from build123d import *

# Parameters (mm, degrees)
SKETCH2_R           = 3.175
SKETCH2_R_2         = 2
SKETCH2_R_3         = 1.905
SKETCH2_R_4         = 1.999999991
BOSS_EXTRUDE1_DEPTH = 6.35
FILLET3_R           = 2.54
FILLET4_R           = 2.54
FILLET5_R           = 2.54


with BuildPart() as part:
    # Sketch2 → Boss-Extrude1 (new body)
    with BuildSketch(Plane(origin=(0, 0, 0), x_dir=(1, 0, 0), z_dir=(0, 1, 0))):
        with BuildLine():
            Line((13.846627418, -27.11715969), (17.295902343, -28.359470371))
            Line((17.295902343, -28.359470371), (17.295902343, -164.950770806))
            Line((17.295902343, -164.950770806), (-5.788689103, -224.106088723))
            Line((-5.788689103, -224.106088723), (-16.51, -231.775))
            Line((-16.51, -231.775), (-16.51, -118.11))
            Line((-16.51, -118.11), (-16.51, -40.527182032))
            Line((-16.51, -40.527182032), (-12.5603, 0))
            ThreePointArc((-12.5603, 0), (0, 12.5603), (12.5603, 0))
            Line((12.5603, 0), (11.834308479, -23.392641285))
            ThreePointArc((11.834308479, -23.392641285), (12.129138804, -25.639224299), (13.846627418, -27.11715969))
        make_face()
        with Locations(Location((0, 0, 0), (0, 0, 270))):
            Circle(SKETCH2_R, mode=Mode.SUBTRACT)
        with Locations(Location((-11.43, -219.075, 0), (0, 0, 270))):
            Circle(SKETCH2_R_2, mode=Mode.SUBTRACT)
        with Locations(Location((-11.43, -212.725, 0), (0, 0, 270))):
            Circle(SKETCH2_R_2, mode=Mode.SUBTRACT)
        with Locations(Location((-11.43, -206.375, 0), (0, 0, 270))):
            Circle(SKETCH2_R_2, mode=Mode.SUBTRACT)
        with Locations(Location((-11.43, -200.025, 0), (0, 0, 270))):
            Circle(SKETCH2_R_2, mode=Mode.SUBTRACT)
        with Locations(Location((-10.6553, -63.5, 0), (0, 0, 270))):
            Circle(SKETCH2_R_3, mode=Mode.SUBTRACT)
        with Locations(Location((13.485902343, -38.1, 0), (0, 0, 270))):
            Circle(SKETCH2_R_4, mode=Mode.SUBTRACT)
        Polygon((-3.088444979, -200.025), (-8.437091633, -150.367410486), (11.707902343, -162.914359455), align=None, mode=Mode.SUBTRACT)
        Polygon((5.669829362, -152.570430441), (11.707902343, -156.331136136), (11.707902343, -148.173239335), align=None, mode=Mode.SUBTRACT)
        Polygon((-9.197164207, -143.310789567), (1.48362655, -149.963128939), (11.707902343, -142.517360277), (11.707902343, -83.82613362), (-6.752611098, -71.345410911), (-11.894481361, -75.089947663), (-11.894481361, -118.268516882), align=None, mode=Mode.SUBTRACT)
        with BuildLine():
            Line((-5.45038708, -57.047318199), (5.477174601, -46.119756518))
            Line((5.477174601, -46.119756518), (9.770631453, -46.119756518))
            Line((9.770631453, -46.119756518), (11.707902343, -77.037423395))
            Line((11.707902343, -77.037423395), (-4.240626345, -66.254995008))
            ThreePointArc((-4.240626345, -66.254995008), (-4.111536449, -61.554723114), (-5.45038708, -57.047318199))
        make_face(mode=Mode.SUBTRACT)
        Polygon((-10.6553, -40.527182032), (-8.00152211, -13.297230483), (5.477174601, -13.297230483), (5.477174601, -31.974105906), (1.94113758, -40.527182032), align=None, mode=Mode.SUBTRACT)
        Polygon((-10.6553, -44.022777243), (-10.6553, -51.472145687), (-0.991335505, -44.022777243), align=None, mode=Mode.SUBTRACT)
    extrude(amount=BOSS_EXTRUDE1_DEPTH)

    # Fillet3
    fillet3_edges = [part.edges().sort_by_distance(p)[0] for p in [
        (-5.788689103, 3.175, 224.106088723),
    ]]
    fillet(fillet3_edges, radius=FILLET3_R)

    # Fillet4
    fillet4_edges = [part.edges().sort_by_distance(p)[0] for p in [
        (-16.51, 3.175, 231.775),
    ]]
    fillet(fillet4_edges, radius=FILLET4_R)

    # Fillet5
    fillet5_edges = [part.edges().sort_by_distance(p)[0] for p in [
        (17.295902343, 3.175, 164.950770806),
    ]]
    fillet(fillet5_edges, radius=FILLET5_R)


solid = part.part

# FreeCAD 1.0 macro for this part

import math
import FreeCAD as App
import Part
import Sketcher
Q = App.Units.Quantity


def edges_at(feature, points):
    """Names of the edges that pass closest to the given points."""
    edges = feature.Shape.Edges
    near = lambda p: min(range(len(edges)), key=lambda i: edges[i].distToShape(Part.Vertex(*p))[0])
    return sorted({f"Edge{near(p) + 1}" for p in points})


def add_polygon(sketch, points):
    """Adds a closed chain of lines whose ends are joined by coincident constraints."""
    first, n = sketch.GeometryCount, len(points)
    for a, b in zip(points, points[1:] + points[:1]):
        sketch.addGeometry(Part.LineSegment(App.Vector(*a, 0), App.Vector(*b, 0)), False)
    for i in range(n):
        sketch.addConstraint(Sketcher.Constraint("Coincident", first + i, 2, first + (i + 1) % n, 1))

doc = App.newDocument("Part")
body = doc.addObject("PartDesign::Body", "Body")

# Sketch on XZ plane
sketch1 = doc.addObject("Sketcher::SketchObject", "Sketch")
body.addObject(sketch1)
sketch1.AttachmentSupport = (doc.XZ_Plane, [""])
sketch1.MapMode = "FlatFace"
sketch1.addGeometry(Part.LineSegment(App.Vector(17.295902, 28.35947, 0), App.Vector(13.846627, 27.11716, 0)), False)  # 0
sketch1.addGeometry(Part.ArcOfCircle(Part.Circle(App.Vector(14.9225, 24.13, 0), App.Vector(0, 0, 1), 3.175), math.radians(109.807283), math.radians(193.428925)), False)  # 1
sketch1.addGeometry(Part.LineSegment(App.Vector(11.834308, 23.392641, 0), App.Vector(12.5603, 0, 0)), False)  # 2
sketch1.addGeometry(Part.ArcOfCircle(Part.Circle(App.Vector(0, 0, 0), App.Vector(0, 0, 1), 12.5603), math.radians(180), math.radians(360)), False)  # 3
sketch1.addGeometry(Part.LineSegment(App.Vector(-12.5603, 0, 0), App.Vector(-16.51, 40.527182, 0)), False)  # 4
sketch1.addGeometry(Part.LineSegment(App.Vector(-16.51, 40.527182, 0), App.Vector(-16.51, 231.775, 0)), False)  # 5
sketch1.addGeometry(Part.LineSegment(App.Vector(-16.51, 231.775, 0), App.Vector(-5.788689, 224.106089, 0)), False)  # 6
sketch1.addGeometry(Part.LineSegment(App.Vector(-5.788689, 224.106089, 0), App.Vector(17.295902, 164.950771, 0)), False)  # 7
sketch1.addGeometry(Part.LineSegment(App.Vector(17.295902, 164.950771, 0), App.Vector(17.295902, 28.35947, 0)), False)  # 8
add_polygon(sketch1, [(-3.088445, 200.025), (-8.437092, 150.36741), (11.707902, 162.914359)])  # lines 9-11
add_polygon(sketch1, [(5.669829, 152.57043), (11.707902, 148.173239), (11.707902, 156.331136)])  # lines 12-14
sketch1.addGeometry(Part.Circle(App.Vector(-11.43, 219.075, 0), App.Vector(0, 0, 1), 2), False)  # 15
sketch1.addGeometry(Part.Circle(App.Vector(-11.43, 212.725, 0), App.Vector(0, 0, 1), 2), False)  # 16
sketch1.addGeometry(Part.Circle(App.Vector(-11.43, 206.375, 0), App.Vector(0, 0, 1), 2), False)  # 17
sketch1.addGeometry(Part.Circle(App.Vector(-11.43, 200.025, 0), App.Vector(0, 0, 1), 2), False)  # 18
add_polygon(sketch1, [(-9.197164, 143.31079), (-11.894481, 118.268517), (-11.894481, 75.089948), (-6.752611, 71.345411), (11.707902, 83.826134), (11.707902, 142.51736), (1.483627, 149.963129)])  # lines 19-25
sketch1.addGeometry(Part.LineSegment(App.Vector(-5.450387, 57.047318, 0), App.Vector(5.477175, 46.119757, 0)), False)  # 26
sketch1.addGeometry(Part.LineSegment(App.Vector(5.477175, 46.119757, 0), App.Vector(9.770631, 46.119757, 0)), False)  # 27
sketch1.addGeometry(Part.LineSegment(App.Vector(9.770631, 46.119757, 0), App.Vector(11.707902, 77.037423, 0)), False)  # 28
sketch1.addGeometry(Part.LineSegment(App.Vector(11.707902, 77.037423, 0), App.Vector(-4.240626, 66.254995, 0)), False)  # 29
sketch1.addGeometry(Part.ArcOfCircle(Part.Circle(App.Vector(-18.917341, 63.5, 0), App.Vector(0, 0, 1), 14.933049), math.radians(-25.601379), math.radians(10.631387)), False)  # 30
sketch1.addGeometry(Part.Circle(App.Vector(13.485902, 38.1, 0), App.Vector(0, 0, 1), 2), False)  # 31
sketch1.addGeometry(Part.Circle(App.Vector(-10.6553, 63.5, 0), App.Vector(0, 0, 1), 1.905), False)  # 32
add_polygon(sketch1, [(-10.6553, 44.022777), (-0.991336, 44.022777), (-10.6553, 51.472146)])  # lines 33-35
add_polygon(sketch1, [(-10.6553, 40.527182), (-8.001522, 13.29723), (5.477175, 13.29723), (5.477175, 31.974106), (1.941138, 40.527182)])  # lines 36-40
sketch1.addGeometry(Part.Circle(App.Vector(0, 0, 0), App.Vector(0, 0, 1), 3.175), False)  # 41
sketch1.addConstraint(Sketcher.Constraint("Coincident", 0, 2, 1, 1))
sketch1.addConstraint(Sketcher.Constraint("Coincident", 1, 2, 2, 1))
sketch1.addConstraint(Sketcher.Constraint("Coincident", 2, 2, 3, 2))
sketch1.addConstraint(Sketcher.Constraint("Coincident", 3, 1, 4, 1))
sketch1.addConstraint(Sketcher.Constraint("Coincident", 4, 2, 5, 1))
sketch1.addConstraint(Sketcher.Constraint("Coincident", 5, 2, 6, 1))
sketch1.addConstraint(Sketcher.Constraint("Coincident", 6, 2, 7, 1))
sketch1.addConstraint(Sketcher.Constraint("Coincident", 7, 2, 8, 1))
sketch1.addConstraint(Sketcher.Constraint("Coincident", 8, 2, 0, 1))
sketch1.addConstraint(Sketcher.Constraint("Coincident", 26, 2, 27, 1))
sketch1.addConstraint(Sketcher.Constraint("Coincident", 27, 2, 28, 1))
sketch1.addConstraint(Sketcher.Constraint("Coincident", 28, 2, 29, 1))
sketch1.addConstraint(Sketcher.Constraint("Coincident", 29, 2, 30, 2))
sketch1.addConstraint(Sketcher.Constraint("Coincident", 30, 1, 26, 1))
sketch1.addConstraint(Sketcher.Constraint("Vertical", 5))
sketch1.addConstraint(Sketcher.Constraint("Vertical", 8))
sketch1.addConstraint(Sketcher.Constraint("Vertical", 13))
sketch1.addConstraint(Sketcher.Constraint("Vertical", 20))
sketch1.addConstraint(Sketcher.Constraint("Vertical", 23))
sketch1.addConstraint(Sketcher.Constraint("Horizontal", 27))
sketch1.addConstraint(Sketcher.Constraint("Horizontal", 33))
sketch1.addConstraint(Sketcher.Constraint("Vertical", 35))
sketch1.addConstraint(Sketcher.Constraint("Horizontal", 37))
sketch1.addConstraint(Sketcher.Constraint("Vertical", 38))
sketch1.addConstraint(Sketcher.Constraint("Horizontal", 40))
sketch1.addConstraint(Sketcher.Constraint("Coincident", 3, 3, -1, 1))
sketch1.addConstraint(Sketcher.Constraint("Coincident", 41, 3, -1, 1))
sketch1.addConstraint(Sketcher.Constraint("PointOnObject", 2, 2, -1))
sketch1.addConstraint(Sketcher.Constraint("PointOnObject", 3, 1, -1))
sketch1.addConstraint(Sketcher.Constraint("Diameter", 32, Q("0.15 in")))
sketch1.addConstraint(Sketcher.Constraint("Diameter", 41, Q("0.25 in")))
sketch1.addConstraint(Sketcher.Constraint("Radius", 1, Q("0.125 in")))
sketch1.addConstraint(Sketcher.Constraint("DistanceY", 31, 3, 30, 3, Q("1 in")))
sketch1.addConstraint(Sketcher.Constraint("DistanceY", 31, 3, 32, 3, Q("1 in")))
sketch1.addConstraint(Sketcher.Constraint("DistanceY", 17, 3, 5, 2, Q("1 in")))
sketch1.addConstraint(Sketcher.Constraint("Distance", 7, Q("2.5 in")))
sketch1.addConstraint(Sketcher.Constraint("DistanceY", -1, 1, 30, 3, Q("2.5 in")))
sketch1.addConstraint(Sketcher.Constraint("Radius", 3, Q("0.4945 in")))
sketch1.addConstraint(Sketcher.Constraint("DistanceY", 17, 3, 15, 3, Q("0.5 in")))
sketch1.addConstraint(Sketcher.Constraint("DistanceY", 18, 3, 16, 3, Q("0.5 in")))
sketch1.addConstraint(Sketcher.Constraint("DistanceX", 5, 2, 15, 3, Q("0.2 in")))
sketch1.addConstraint(Sketcher.Constraint("DistanceX", 5, 2, 16, 3, Q("0.2 in")))
sketch1.addConstraint(Sketcher.Constraint("DistanceX", 5, 2, 17, 3, Q("0.2 in")))
sketch1.addConstraint(Sketcher.Constraint("DistanceX", 5, 2, 18, 3, Q("0.2 in")))
sketch1.addConstraint(Sketcher.Constraint("DistanceY", 11, 2, 16, 3, Q("0.5 in")))
sketch1.addConstraint(Sketcher.Constraint("Diameter", 15, Q("4 mm")))
sketch1.addConstraint(Sketcher.Constraint("Diameter", 16, Q("4 mm")))
sketch1.addConstraint(Sketcher.Constraint("Diameter", 17, Q("4 mm")))
sketch1.addConstraint(Sketcher.Constraint("Diameter", 18, Q("4 mm")))
sketch1.addConstraint(Sketcher.Constraint("Diameter", 31, Q("4 mm")))
sketch1.addConstraint(Sketcher.Constraint("DistanceY", -1, 1, 1, 3, Q("0.95 in")))
sketch1.addConstraint(Sketcher.Constraint("DistanceX", 15, 3, -1, 1, Q("0.45 in")))
sketch1.addConstraint(Sketcher.Constraint("DistanceY", 16, 3, 15, 3, Q("0.25 in")))
sketch1.addConstraint(Sketcher.Constraint("DistanceX", 31, 3, 8, 2, Q("0.15 in")))
sketch1.addConstraint(Sketcher.Constraint("DistanceX", 10, 2, 7, 2, Q("0.22 in")))
sketch1.addConstraint(Sketcher.Constraint("DistanceX", 12, 2, 7, 2, Q("0.22 in")))
sketch1.addConstraint(Sketcher.Constraint("DistanceY", -1, 1, 15, 3, Q("8.625 in")))
sketch1.addConstraint(Sketcher.Constraint("Radius", 30, Q("14.933049 mm")))
sketch1.addConstraint(Sketcher.Constraint("DistanceX", 32, 3, 1, 3, Q("1.007 in")))
sketch1.addConstraint(Sketcher.Constraint("DistanceX", 2, 2, 1, 3, Q("0.093 in")))
sketch1.addConstraint(Sketcher.Constraint("DistanceY", 8, 2, 8, 1, Q("136.5913 mm")))
sketch1.addConstraint(Sketcher.Constraint("DistanceX", 34, 2, -1, 1, Q("0.4195 in")))
sketch1.addConstraint(Sketcher.Constraint("DistanceX", 40, 2, -1, 1, Q("0.4195 in")))
sketch1.addConstraint(Sketcher.Constraint("Distance", 28, Q("30.978301 mm")))
sketch1.addConstraint(Sketcher.Constraint("Distance", 29, Q("19.251398 mm")))
sketch1.addConstraint(Sketcher.Constraint("DistanceY", 20, 2, 20, 1, Q("43.178569 mm")))
sketch1.addConstraint(Sketcher.Constraint("DistanceY", 35, 2, 35, 1, Q("7.449368 mm")))
sketch1.addConstraint(Sketcher.Constraint("DistanceY", 23, 2, 10, 2, Q("20.396999 mm")))
sketch1.addConstraint(Sketcher.Constraint("DistanceY", 24, 2, 14, 2, Q("2.607302 mm")))
sketch1.addConstraint(Sketcher.Constraint("Distance", 9, Q("49.944812 mm")))
sketch1.addConstraint(Sketcher.Constraint("Distance", 10, Q("23.732819 mm")))
sketch1.addConstraint(Sketcher.Constraint("Distance", 19, Q("25.187119 mm")))
sketch1.addConstraint(Sketcher.Constraint("Distance", 25, Q("12.583041 mm")))
sketch1.addConstraint(Sketcher.Constraint("Distance", 36, Q("27.358962 mm")))
sketch1.addConstraint(Sketcher.Constraint("DistanceX", 27, 1, 27, 2, Q("4.293457 mm")))
sketch1.addConstraint(Sketcher.Constraint("DistanceX", 33, 1, 33, 2, Q("9.663964 mm")))
sketch1.addConstraint(Sketcher.Constraint("DistanceX", 37, 1, 37, 2, Q("13.478697 mm")))
sketch1.addConstraint(Sketcher.Constraint("DistanceX", 40, 2, 40, 1, Q("12.596438 mm")))
sketch1.addConstraint(Sketcher.Constraint("DistanceY", 5, 1, 5, 2, Q("191.247818 mm")))
sketch1.addConstraint(Sketcher.Constraint("DistanceY", 13, 1, 13, 2, Q("8.157897 mm")))
sketch1.addConstraint(Sketcher.Constraint("DistanceY", 23, 1, 23, 2, Q("58.691227 mm")))
sketch1.addConstraint(Sketcher.Constraint("DistanceY", 38, 1, 38, 2, Q("18.676875 mm")))
sketch1.addConstraint(Sketcher.Constraint("DistanceX", 30, 3, -1, 1, Q("18.917341 mm")))
sketch1.addConstraint(Sketcher.Constraint("DistanceY", -1, 1, 0, 2, Q("27.11716 mm")))
sketch1.addConstraint(Sketcher.Constraint("DistanceX", -1, 1, 1, 2, Q("11.834308 mm")))
sketch1.addConstraint(Sketcher.Constraint("DistanceX", 6, 2, -1, 1, Q("5.788689 mm")))
sketch1.addConstraint(Sketcher.Constraint("DistanceY", -1, 1, 6, 2, Q("224.106089 mm")))
sketch1.addConstraint(Sketcher.Constraint("DistanceY", -1, 1, 7, 2, Q("164.950771 mm")))
sketch1.addConstraint(Sketcher.Constraint("DistanceX", 9, 2, -1, 1, Q("8.437092 mm")))
sketch1.addConstraint(Sketcher.Constraint("DistanceY", -1, 1, 9, 2, Q("150.36741 mm")))
sketch1.addConstraint(Sketcher.Constraint("DistanceY", -1, 1, 12, 2, Q("148.173239 mm")))
sketch1.addConstraint(Sketcher.Constraint("DistanceX", -1, 1, 14, 2, Q("5.669829 mm")))
sketch1.addConstraint(Sketcher.Constraint("DistanceY", -1, 1, 14, 2, Q("152.57043 mm")))
sketch1.addConstraint(Sketcher.Constraint("DistanceX", 19, 2, -1, 1, Q("11.894481 mm")))
sketch1.addConstraint(Sketcher.Constraint("DistanceX", 21, 2, -1, 1, Q("6.752611 mm")))
sketch1.addConstraint(Sketcher.Constraint("DistanceY", -1, 1, 21, 2, Q("71.345411 mm")))
sketch1.addConstraint(Sketcher.Constraint("DistanceY", -1, 1, 25, 2, Q("143.31079 mm")))
sketch1.addConstraint(Sketcher.Constraint("DistanceX", -1, 1, 27, 2, Q("9.770631 mm")))
sketch1.addConstraint(Sketcher.Constraint("DistanceY", -1, 1, 30, 1, Q("57.047318 mm")))
sketch1.addConstraint(Sketcher.Constraint("DistanceY", -1, 1, 36, 2, Q("13.29723 mm")))
sketch1.addConstraint(Sketcher.Constraint("DistanceY", 19, 2, 13, 2, Q("38.062619 mm")))
sketch1.addConstraint(Sketcher.Constraint("DistanceY", 28, 2, 22, 2, Q("6.78871 mm")))
sketch1.addConstraint(Sketcher.Constraint("DistanceX", 27, 2, 28, 2, Q("1.937271 mm")))
sketch1.addConstraint(Sketcher.Constraint("DistanceY", 33, 2, 26, 2, Q("2.096979 mm")))
sketch1.addConstraint(Sketcher.Constraint("DistanceX", 36, 2, 1, 2, Q("19.835831 mm")))
sketch1.addConstraint(Sketcher.Constraint("Distance", 22, Q("22.283604 mm")))
pad1 = doc.addObject("PartDesign::Pad", "Pad")
body.addObject(pad1)
pad1.Profile = sketch1
pad1.Length = Q("0.25 in")
pad1.Reversed = True
doc.recompute()

fillet = doc.addObject("PartDesign::Fillet", "Fillet")
body.addObject(fillet)
fillet.Base = (pad1, edges_at(pad1, [(-5.789, 3.175, 224.106)]))
fillet.Radius = Q("0.1 in")
doc.recompute()

fillet2 = doc.addObject("PartDesign::Fillet", "Fillet001")
body.addObject(fillet2)
fillet2.Base = (fillet, edges_at(fillet, [(-16.51, 3.175, 231.775)]))
fillet2.Radius = Q("0.1 in")
doc.recompute()

fillet3 = doc.addObject("PartDesign::Fillet", "Fillet002")
body.addObject(fillet3)
fillet3.Base = (fillet2, edges_at(fillet2, [(17.296, 3.175, 164.951)]))
fillet3.Radius = Q("0.1 in")

doc.recompute()
